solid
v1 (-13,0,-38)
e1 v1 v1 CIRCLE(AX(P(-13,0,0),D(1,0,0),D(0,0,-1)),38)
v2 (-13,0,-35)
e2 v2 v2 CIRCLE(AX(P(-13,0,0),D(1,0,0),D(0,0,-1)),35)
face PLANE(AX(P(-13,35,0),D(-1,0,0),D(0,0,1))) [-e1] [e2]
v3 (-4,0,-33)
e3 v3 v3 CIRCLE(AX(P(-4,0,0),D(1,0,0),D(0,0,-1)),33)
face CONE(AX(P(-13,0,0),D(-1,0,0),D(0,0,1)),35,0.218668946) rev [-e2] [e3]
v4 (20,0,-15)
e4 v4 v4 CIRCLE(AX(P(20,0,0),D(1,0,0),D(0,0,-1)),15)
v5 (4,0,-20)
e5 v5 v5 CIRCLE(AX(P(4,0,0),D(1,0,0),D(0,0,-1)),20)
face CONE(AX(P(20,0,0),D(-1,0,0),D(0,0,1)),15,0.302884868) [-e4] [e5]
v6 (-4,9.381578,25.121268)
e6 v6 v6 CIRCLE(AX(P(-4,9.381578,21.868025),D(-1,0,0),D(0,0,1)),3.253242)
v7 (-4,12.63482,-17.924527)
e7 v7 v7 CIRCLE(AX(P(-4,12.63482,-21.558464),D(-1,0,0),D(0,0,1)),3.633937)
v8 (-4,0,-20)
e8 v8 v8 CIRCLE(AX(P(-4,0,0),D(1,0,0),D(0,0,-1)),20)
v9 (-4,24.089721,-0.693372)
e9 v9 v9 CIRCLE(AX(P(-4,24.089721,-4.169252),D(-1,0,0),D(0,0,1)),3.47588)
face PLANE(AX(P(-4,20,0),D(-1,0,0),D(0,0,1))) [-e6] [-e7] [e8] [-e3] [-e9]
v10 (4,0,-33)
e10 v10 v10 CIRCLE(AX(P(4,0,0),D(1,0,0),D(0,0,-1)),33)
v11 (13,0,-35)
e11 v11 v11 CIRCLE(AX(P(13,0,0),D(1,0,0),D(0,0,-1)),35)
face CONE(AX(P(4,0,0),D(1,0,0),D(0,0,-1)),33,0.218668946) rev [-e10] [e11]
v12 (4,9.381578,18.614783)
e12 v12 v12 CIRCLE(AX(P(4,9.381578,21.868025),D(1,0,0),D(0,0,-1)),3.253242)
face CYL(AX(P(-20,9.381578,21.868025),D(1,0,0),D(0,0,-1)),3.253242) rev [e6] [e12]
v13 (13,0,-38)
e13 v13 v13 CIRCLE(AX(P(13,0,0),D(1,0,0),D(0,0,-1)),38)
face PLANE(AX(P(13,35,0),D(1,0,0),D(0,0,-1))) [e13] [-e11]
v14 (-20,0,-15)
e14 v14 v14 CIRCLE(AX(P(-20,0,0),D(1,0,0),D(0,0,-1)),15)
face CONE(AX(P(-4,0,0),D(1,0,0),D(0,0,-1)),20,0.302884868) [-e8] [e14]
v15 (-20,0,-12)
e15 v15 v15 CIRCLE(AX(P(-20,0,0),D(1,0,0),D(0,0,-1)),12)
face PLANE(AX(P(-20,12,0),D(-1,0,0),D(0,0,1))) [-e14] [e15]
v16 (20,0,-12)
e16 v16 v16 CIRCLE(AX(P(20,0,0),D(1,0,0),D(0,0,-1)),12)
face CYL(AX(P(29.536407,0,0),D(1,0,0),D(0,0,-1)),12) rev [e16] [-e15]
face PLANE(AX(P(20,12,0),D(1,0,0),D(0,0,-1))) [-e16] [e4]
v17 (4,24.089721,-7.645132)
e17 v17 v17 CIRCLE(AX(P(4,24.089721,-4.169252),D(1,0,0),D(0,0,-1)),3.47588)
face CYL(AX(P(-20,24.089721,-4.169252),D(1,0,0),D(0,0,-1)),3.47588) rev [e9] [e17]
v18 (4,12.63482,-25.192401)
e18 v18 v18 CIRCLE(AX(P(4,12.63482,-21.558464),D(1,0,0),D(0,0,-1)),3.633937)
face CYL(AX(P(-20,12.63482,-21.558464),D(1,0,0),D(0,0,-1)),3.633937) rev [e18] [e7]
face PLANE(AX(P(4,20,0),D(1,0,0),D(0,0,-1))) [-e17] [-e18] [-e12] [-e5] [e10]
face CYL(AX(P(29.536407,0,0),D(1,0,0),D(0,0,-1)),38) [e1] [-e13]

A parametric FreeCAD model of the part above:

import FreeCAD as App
import Part
import Sketcher

V = App.Vector
Q = App.Units.Quantity

doc = App.newDocument("Part")
body = doc.addObject("PartDesign::Body", "Body")

# Sketch on XY plane
sketch1 = body.newObject("Sketcher::SketchObject", "Sketch")
sketch1.AttachmentSupport = (doc.getObject("XY_Plane"), [""])
sketch1.MapMode = "FlatFace"
sketch1.addGeometry(Part.LineSegment(V(20, 12, 0), V(20, 15, 0)), False)
sketch1.addGeometry(Part.LineSegment(V(20, 15, 0), V(4, 20, 0)), False)
sketch1.addGeometry(Part.LineSegment(V(4, 20, 0), V(4, 33, 0)), False)
sketch1.addGeometry(Part.LineSegment(V(4, 33, 0), V(13, 35, 0)), False)
sketch1.addGeometry(Part.LineSegment(V(13, 35, 0), V(13, 38, 0)), False)
sketch1.addGeometry(Part.LineSegment(V(13, 38, 0), V(-13, 38, 0)), False)
sketch1.addGeometry(Part.LineSegment(V(-13, 38, 0), V(-13, 35, 0)), False)
sketch1.addGeometry(Part.LineSegment(V(-13, 35, 0), V(-4, 33, 0)), False)
sketch1.addGeometry(Part.LineSegment(V(-4, 33, 0), V(-4, 20, 0)), False)
sketch1.addGeometry(Part.LineSegment(V(-4, 20, 0), V(-20, 15, 0)), False)
sketch1.addGeometry(Part.LineSegment(V(-20, 15, 0), V(-20, 12, 0)), False)
sketch1.addGeometry(Part.LineSegment(V(-20, 12, 0), V(20, 12, 0)), False)
sketch1.addConstraint(Sketcher.Constraint("Coincident", 0, 2, 1, 1))
sketch1.addConstraint(Sketcher.Constraint("Coincident", 1, 2, 2, 1))
sketch1.addConstraint(Sketcher.Constraint("Coincident", 2, 2, 3, 1))
sketch1.addConstraint(Sketcher.Constraint("Coincident", 3, 2, 4, 1))
sketch1.addConstraint(Sketcher.Constraint("Coincident", 4, 2, 5, 1))
sketch1.addConstraint(Sketcher.Constraint("Coincident", 5, 2, 6, 1))
sketch1.addConstraint(Sketcher.Constraint("Coincident", 6, 2, 7, 1))
sketch1.addConstraint(Sketcher.Constraint("Coincident", 7, 2, 8, 1))
sketch1.addConstraint(Sketcher.Constraint("Coincident", 8, 2, 9, 1))
sketch1.addConstraint(Sketcher.Constraint("Coincident", 9, 2, 10, 1))
sketch1.addConstraint(Sketcher.Constraint("Coincident", 10, 2, 11, 1))
sketch1.addConstraint(Sketcher.Constraint("Coincident", 11, 2, 0, 1))
sketch1.addConstraint(Sketcher.Constraint("Vertical", 0))
sketch1.addConstraint(Sketcher.Constraint("Vertical", 2))
sketch1.addConstraint(Sketcher.Constraint("Vertical", 4))
sketch1.addConstraint(Sketcher.Constraint("Horizontal", 5))
sketch1.addConstraint(Sketcher.Constraint("Vertical", 6))
sketch1.addConstraint(Sketcher.Constraint("Vertical", 8))
sketch1.addConstraint(Sketcher.Constraint("Vertical", 10))
sketch1.addConstraint(Sketcher.Constraint("Horizontal", 11))
sketch1.addConstraint(Sketcher.Constraint("Symmetric", 3, 2, 6, 2, -2))
sketch1.addConstraint(Sketcher.Constraint("Symmetric", 2, 2, 7, 2, -2))
sketch1.addConstraint(Sketcher.Constraint("Symmetric", 0, 2, 9, 2, -2))
sketch1.addConstraint(Sketcher.Constraint("Horizontal", 1, 2, 8, 2))
sketch1.addConstraint(Sketcher.Constraint("Equal", 0, 4))
sketch1.addConstraint(Sketcher.Constraint("DistanceX", 5, 2, 5, 1, Q("26 mm")))
sketch1.addConstraint(Sketcher.Constraint("DistanceX", 11, 1, 11, 2, Q("40 mm")))
sketch1.addConstraint(Sketcher.Constraint("DistanceY", 0, 1, 0, 2, Q("3 mm")))
sketch1.addConstraint(Sketcher.Constraint("DistanceY", 2, 1, 2, 2, Q("13 mm")))
sketch1.addConstraint(Sketcher.Constraint("DistanceY", -1, 1, 0, 2, Q("15 mm")))
sketch1.addConstraint(Sketcher.Constraint("DistanceX", -1, 1, 1, 2, Q("4 mm")))
sketch1.addConstraint(Sketcher.Constraint("DistanceY", -1, 1, 1, 2, Q("20 mm")))
sketch1.addConstraint(Sketcher.Constraint("DistanceY", -1, 1, 3, 2, Q("35 mm")))
revolution = body.newObject("PartDesign::Revolution", "Revolution")
revolution.Profile = sketch1
revolution.ReferenceAxis = (sketch1, ["H_Axis"])
revolution.Angle = 360

# Sketch on YZ plane
sketch2 = body.newObject("Sketcher::SketchObject", "Sketch001")
sketch2.AttachmentSupport = (doc.getObject("YZ_Plane"), [""])
sketch2.MapMode = "FlatFace"
sketch2.AttachmentOffset = App.Placement(V(0, 0, 4), App.Rotation())
sketch2.addGeometry(Part.Circle(V(9.4, 21.9, 0), V(0, 0, 1), 3.3), False)
sketch2.addGeometry(Part.Circle(V(24.1, -4.2, 0), V(0, 0, 1), 3.5), False)
sketch2.addGeometry(Part.Circle(V(12.6, -21.6, 0), V(0, 0, 1), 3.6), False)
sketch2.addConstraint(Sketcher.Constraint("Diameter", 1, Q("6.95176 mm")))
sketch2.addConstraint(Sketcher.Constraint("Diameter", 0, Q("6.506485 mm")))
sketch2.addConstraint(Sketcher.Constraint("Diameter", 2, Q("7.267874 mm")))
sketch2.addConstraint(Sketcher.Constraint("DistanceX", 2, 3, 1, 3, Q("11.454901 mm")))
sketch2.addConstraint(Sketcher.Constraint("DistanceX", -1, 1, 0, 3, Q("9.381578 mm")))
sketch2.addConstraint(Sketcher.Constraint("DistanceX", -1, 1, 1, 3, Q("24.089721 mm")))
sketch2.addConstraint(Sketcher.Constraint("DistanceY", 2, 3, 1, 3, Q("17.389212 mm")))
sketch2.addConstraint(Sketcher.Constraint("DistanceY", 2, 3, 0, 3, Q("43.426489 mm")))
sketch2.addConstraint(Sketcher.Constraint("DistanceY", -1, 1, 0, 3, Q("21.868025 mm")))
pocket1 = body.newObject("PartDesign::Pocket", "Pocket")
pocket1.Profile = sketch2
pocket1.Type = "ThroughAll"
pocket1.Midplane = True

doc.recompute()
